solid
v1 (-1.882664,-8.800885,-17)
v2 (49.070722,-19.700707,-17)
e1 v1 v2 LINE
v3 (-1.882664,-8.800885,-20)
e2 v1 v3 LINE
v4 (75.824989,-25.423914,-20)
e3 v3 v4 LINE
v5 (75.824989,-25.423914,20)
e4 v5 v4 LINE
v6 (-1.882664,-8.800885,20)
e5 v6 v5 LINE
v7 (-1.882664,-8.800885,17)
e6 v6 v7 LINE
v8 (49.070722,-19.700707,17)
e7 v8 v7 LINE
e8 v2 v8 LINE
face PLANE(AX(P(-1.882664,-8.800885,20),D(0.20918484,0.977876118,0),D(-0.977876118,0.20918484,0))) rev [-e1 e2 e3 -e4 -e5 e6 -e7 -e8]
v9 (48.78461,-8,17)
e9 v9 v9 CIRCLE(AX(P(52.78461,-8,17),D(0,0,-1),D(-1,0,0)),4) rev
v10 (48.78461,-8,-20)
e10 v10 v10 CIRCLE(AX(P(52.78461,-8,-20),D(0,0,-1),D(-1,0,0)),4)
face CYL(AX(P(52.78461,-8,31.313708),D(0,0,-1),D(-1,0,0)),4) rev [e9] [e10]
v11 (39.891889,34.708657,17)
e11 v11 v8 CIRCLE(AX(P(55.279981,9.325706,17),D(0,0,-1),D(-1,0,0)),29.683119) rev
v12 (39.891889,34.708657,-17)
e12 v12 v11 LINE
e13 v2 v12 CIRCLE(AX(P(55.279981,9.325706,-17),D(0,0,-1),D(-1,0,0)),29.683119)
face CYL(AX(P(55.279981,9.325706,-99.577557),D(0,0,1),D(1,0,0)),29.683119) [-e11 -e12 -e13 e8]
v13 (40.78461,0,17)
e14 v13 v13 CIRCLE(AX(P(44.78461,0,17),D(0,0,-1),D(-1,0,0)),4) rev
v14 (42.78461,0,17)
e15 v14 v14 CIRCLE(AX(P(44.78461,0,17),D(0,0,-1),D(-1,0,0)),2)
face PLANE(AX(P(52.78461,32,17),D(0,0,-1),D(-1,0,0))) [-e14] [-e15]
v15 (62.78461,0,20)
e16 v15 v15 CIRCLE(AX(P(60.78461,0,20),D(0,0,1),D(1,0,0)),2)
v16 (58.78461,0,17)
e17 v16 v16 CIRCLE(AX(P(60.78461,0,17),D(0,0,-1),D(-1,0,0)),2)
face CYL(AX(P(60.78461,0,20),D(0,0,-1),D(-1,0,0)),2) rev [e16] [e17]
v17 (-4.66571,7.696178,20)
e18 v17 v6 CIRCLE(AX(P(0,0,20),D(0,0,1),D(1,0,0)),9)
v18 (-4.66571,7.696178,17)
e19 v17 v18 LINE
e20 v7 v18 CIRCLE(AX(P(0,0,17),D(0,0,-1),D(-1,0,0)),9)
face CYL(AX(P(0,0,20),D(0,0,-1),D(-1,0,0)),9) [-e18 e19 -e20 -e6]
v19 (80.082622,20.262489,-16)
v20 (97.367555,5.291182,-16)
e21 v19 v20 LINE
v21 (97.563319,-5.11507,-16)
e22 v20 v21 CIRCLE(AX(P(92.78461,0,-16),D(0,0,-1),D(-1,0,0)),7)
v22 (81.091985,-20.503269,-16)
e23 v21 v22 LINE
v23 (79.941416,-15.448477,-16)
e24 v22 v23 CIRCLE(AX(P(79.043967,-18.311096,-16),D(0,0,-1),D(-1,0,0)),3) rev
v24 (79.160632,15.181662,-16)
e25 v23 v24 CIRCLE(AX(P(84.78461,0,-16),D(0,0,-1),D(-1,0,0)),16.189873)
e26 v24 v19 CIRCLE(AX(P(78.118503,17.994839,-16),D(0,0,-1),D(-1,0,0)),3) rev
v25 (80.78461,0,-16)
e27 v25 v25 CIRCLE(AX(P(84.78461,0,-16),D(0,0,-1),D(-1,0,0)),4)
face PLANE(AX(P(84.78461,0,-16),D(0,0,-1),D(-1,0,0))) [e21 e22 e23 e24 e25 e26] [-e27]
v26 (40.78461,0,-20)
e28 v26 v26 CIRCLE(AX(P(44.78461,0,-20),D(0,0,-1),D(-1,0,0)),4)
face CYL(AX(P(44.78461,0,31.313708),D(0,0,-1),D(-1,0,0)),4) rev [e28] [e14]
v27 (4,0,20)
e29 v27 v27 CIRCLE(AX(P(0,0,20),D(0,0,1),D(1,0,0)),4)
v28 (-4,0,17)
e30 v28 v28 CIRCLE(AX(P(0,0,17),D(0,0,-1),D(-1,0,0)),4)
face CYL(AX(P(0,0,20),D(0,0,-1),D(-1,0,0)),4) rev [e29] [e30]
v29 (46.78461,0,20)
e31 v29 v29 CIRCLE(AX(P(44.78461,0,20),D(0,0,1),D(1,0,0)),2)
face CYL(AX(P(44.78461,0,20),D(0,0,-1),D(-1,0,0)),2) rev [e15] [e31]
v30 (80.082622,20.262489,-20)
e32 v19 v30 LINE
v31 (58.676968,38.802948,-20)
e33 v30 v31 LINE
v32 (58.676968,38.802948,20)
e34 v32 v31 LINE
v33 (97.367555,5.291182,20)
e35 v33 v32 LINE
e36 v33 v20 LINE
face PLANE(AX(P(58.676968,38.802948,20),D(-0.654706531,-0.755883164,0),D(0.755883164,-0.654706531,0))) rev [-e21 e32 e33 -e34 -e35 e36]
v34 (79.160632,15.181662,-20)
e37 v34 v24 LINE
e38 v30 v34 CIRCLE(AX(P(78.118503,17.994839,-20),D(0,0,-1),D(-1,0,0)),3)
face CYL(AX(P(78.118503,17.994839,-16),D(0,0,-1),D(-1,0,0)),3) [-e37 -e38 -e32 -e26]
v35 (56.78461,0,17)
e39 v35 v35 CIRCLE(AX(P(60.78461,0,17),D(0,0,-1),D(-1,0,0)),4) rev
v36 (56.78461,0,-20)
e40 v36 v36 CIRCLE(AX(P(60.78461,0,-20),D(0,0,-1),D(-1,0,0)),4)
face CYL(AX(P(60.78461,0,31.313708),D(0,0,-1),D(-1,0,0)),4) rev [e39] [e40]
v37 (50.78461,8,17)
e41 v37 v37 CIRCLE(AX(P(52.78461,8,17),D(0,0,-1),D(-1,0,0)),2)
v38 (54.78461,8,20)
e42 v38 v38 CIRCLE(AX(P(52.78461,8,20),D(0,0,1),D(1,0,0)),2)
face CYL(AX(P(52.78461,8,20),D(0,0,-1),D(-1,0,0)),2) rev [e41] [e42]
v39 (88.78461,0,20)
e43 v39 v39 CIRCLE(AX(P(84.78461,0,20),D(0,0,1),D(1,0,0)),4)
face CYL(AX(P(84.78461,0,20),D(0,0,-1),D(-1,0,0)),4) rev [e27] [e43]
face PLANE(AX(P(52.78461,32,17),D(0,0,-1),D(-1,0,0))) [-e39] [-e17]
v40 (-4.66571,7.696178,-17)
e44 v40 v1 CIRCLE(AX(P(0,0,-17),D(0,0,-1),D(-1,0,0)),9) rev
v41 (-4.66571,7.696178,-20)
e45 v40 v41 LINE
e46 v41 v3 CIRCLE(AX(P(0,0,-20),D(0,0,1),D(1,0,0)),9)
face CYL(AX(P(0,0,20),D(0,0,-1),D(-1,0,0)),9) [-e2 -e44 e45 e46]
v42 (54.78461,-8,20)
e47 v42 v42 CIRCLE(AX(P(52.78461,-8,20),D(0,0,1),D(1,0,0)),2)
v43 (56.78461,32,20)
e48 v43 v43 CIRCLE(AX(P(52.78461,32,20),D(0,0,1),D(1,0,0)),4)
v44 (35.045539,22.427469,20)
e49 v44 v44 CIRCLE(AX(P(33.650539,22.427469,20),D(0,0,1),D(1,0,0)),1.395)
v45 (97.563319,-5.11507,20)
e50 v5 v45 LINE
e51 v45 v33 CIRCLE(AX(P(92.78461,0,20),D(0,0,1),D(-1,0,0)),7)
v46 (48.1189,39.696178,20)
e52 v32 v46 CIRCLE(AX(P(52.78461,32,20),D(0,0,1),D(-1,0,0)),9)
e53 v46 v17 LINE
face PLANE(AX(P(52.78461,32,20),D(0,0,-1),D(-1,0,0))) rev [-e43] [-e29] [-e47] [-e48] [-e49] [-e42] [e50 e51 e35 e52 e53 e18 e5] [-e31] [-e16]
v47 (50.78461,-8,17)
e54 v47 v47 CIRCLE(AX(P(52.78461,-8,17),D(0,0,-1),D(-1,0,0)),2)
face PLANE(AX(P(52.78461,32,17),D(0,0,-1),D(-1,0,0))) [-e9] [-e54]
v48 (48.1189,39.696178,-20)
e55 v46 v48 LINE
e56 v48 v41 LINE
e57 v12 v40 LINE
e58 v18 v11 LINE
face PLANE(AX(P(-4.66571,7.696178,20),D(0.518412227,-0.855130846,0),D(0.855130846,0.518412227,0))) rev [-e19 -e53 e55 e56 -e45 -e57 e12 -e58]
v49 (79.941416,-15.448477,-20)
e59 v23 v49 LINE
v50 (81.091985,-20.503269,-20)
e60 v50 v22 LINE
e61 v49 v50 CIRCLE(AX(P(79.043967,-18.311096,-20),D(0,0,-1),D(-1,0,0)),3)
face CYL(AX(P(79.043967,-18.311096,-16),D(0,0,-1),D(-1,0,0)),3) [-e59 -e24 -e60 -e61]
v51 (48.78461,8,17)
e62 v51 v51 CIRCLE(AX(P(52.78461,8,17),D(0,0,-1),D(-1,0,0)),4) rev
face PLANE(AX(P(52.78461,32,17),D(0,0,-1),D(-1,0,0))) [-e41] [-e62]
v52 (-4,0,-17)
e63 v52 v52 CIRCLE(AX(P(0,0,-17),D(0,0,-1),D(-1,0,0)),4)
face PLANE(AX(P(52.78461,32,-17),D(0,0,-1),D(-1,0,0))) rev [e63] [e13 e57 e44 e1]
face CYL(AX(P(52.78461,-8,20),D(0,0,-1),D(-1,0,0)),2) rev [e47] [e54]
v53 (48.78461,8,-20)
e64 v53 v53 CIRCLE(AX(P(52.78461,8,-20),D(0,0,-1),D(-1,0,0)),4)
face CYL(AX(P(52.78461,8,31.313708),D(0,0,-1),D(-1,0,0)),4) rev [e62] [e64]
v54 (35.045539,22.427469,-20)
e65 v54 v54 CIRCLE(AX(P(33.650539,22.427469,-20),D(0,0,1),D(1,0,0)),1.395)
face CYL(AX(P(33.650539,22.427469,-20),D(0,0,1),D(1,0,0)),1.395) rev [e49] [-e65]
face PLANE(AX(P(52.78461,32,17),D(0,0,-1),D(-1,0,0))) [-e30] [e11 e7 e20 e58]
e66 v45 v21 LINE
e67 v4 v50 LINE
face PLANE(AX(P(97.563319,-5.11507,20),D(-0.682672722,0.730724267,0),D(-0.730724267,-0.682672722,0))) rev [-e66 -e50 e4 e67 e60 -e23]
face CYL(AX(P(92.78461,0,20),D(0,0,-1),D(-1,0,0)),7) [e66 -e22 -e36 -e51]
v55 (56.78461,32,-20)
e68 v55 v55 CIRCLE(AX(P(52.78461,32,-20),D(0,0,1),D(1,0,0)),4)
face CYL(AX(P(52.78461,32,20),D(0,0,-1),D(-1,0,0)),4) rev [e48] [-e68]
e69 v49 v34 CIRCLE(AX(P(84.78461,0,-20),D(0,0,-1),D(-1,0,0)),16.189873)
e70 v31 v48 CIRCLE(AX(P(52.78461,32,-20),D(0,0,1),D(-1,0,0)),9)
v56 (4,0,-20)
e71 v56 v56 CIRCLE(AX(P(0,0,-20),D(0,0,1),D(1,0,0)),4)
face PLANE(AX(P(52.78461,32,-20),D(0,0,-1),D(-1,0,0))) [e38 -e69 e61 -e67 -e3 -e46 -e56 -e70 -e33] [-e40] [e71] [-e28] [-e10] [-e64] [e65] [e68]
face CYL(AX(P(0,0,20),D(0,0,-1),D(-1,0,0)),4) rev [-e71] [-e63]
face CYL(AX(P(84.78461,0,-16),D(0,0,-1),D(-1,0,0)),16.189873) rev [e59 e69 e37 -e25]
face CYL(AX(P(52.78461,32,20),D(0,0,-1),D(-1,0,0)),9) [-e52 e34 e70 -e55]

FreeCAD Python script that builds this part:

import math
import FreeCAD as App
import Part
import Sketcher
from FreeCAD import Vector


def edges_at(feature, points):
    """Names of the edges that pass closest to the given points."""
    edges = feature.Shape.Edges
    near = lambda p: min(range(len(edges)), key=lambda i: edges[i].distToShape(Part.Vertex(*p))[0])
    return sorted({f"Edge{near(p) + 1}" for p in points})

doc = App.newDocument("Part")
body = doc.addObject("PartDesign::Body", "Body")

sketch1 = body.newObject("Sketcher::SketchObject", "Sketch")
sketch1.AttachmentSupport = (doc.getObject("XY_Plane"), [""])
sketch1.MapMode = "FlatFace"
sketch1.addGeometry(Part.LineSegment(Vector(48.1, 39.7, 0), Vector(-4.7, 7.7, 0)), False)
sketch1.addGeometry(Part.ArcOfCircle(Part.Circle(Vector(0, 0, 0), Vector(0, 0, 1), 9), math.radians(121), math.radians(258)), False)
sketch1.addGeometry(Part.LineSegment(Vector(-1.9, -8.8, 0), Vector(75.8, -25.4, 0)), False)
sketch1.addGeometry(Part.LineSegment(Vector(75.8, -25.4, 0), Vector(97.6, -5.1, 0)), False)
sketch1.addGeometry(Part.ArcOfCircle(Part.Circle(Vector(92.8, 0, 0), Vector(0, 0, 1), 7), math.radians(-47), math.radians(49)), False)
sketch1.addGeometry(Part.LineSegment(Vector(97.4, 5.3, 0), Vector(58.7, 38.8, 0)), False)
sketch1.addGeometry(Part.ArcOfCircle(Part.Circle(Vector(52.8, 32, 0), Vector(0, 0, 1), 9), math.radians(49), math.radians(121)), False)
sketch1.addGeometry(Part.Circle(Vector(84.8, 0, 0), Vector(0, 0, 1), 4), False)
sketch1.addGeometry(Part.Circle(Vector(52.8, -8, 0), Vector(0, 0, 1), 2), False)
sketch1.addGeometry(Part.Circle(Vector(60.8, 0, 0), Vector(0, 0, 1), 2), False)
sketch1.addGeometry(Part.Circle(Vector(44.8, 0, 0), Vector(0, 0, 1), 2), False)
sketch1.addGeometry(Part.Circle(Vector(52.8, 8, 0), Vector(0, 0, 1), 2), False)
sketch1.addGeometry(Part.Circle(Vector(0, 0, 0), Vector(0, 0, 1), 4), False)
sketch1.addGeometry(Part.Circle(Vector(52.8, 32, 0), Vector(0, 0, 1), 4), False)
sketch1.addConstraint(Sketcher.Constraint("Tangent", 0, 2, 1, 1))
sketch1.addConstraint(Sketcher.Constraint("Tangent", 1, 2, 2, 1))
sketch1.addConstraint(Sketcher.Constraint("Coincident", 2, 2, 3, 1))
sketch1.addConstraint(Sketcher.Constraint("Tangent", 3, 2, 4, 1))
sketch1.addConstraint(Sketcher.Constraint("Tangent", 4, 2, 5, 1))
sketch1.addConstraint(Sketcher.Constraint("Tangent", 5, 2, 6, 1))
sketch1.addConstraint(Sketcher.Constraint("Tangent", 6, 2, 0, 1))
sketch1.addConstraint(Sketcher.Constraint("Coincident", 1, 3, -1, 1))
sketch1.addConstraint(Sketcher.Constraint("Coincident", 12, 3, -1, 1))
sketch1.addConstraint(Sketcher.Constraint("Coincident", 13, 3, 6, 3))
sketch1.addConstraint(Sketcher.Constraint("Equal", 1, 6))
sketch1.addConstraint(Sketcher.Constraint("Equal", 8, 9))
sketch1.addConstraint(Sketcher.Constraint("Equal", 9, 10))
sketch1.addConstraint(Sketcher.Constraint("Equal", 10, 11))
sketch1.addConstraint(Sketcher.Constraint("Equal", 7, 12))
sketch1.addConstraint(Sketcher.Constraint("Equal", 12, 13))
sketch1.addConstraint(Sketcher.Constraint("Symmetric", 8, 3, 11, 3, -1))
sketch1.addConstraint(Sketcher.Constraint("PointOnObject", 4, 3, -1))
sketch1.addConstraint(Sketcher.Constraint("PointOnObject", 7, 3, -1))
sketch1.addConstraint(Sketcher.Constraint("PointOnObject", 9, 3, -1))
sketch1.addConstraint(Sketcher.Constraint("PointOnObject", 10, 3, -1))
sketch1.addConstraint(Sketcher.Constraint("Vertical", 6, 3, 8, 3))
sketch1.addConstraint(Sketcher.Constraint("Diameter", 7, 8.0))
sketch1.addConstraint(Sketcher.Constraint("Diameter", 8, 4.0))
sketch1.addConstraint(Sketcher.Constraint("Radius", 1, 9.0))
sketch1.addConstraint(Sketcher.Constraint("Radius", 4, 7.0))
sketch1.addConstraint(Sketcher.Constraint("DistanceY", -1, 1, 6, 3, 32.0))
sketch1.addConstraint(Sketcher.Constraint("DistanceY", 8, 3, -1, 1, 8.0))
sketch1.addConstraint(Sketcher.Constraint("DistanceX", 6, 3, 4, 3, 40.0))
sketch1.addConstraint(Sketcher.Constraint("DistanceX", 7, 3, 4, 3, 8.0))
sketch1.addConstraint(Sketcher.Constraint("DistanceX", 8, 3, 9, 3, 8.0))
sketch1.addConstraint(Sketcher.Constraint("DistanceX", 10, 3, 8, 3, 8.0))
sketch1.addConstraint(Sketcher.Constraint("DistanceX", -1, 1, 6, 2, 48.1189))
sketch1.addConstraint(Sketcher.Constraint("Distance", 3, 29.749019))
sketch1.addConstraint(Sketcher.Constraint("DistanceX", -1, 1, 2, 2, 75.824989))
pad1 = body.newObject("PartDesign::Pad", "Pad")
pad1.Profile = sketch1
pad1.Length = 40
pad1.Midplane = True

sketch2 = body.newObject("Sketcher::SketchObject", "Sketch001")
sketch2.AttachmentSupport = (doc.getObject("XY_Plane"), [""])
sketch2.MapMode = "FlatFace"
sketch2.addGeometry(Part.LineSegment(Vector(40, 35, 0), Vector(-5, 8, 0)), False)
sketch2.addGeometry(Part.ArcOfCircle(Part.Circle(Vector(0, 0, 0), Vector(0, 0, 1), 9), math.radians(121), math.radians(258)), False)
sketch2.addGeometry(Part.LineSegment(Vector(-2, -9, 0), Vector(49, -20, 0)), False)
sketch2.addGeometry(Part.ArcOfCircle(Part.Circle(Vector(55, 9, 0), Vector(0, 0, 1), 30), math.radians(121), math.radians(258)), False)
sketch2.addConstraint(Sketcher.Constraint("Tangent", 0, 2, 1, 1))
sketch2.addConstraint(Sketcher.Constraint("Tangent", 1, 2, 2, 1))
sketch2.addConstraint(Sketcher.Constraint("Tangent", 2, 2, 3, 2))
sketch2.addConstraint(Sketcher.Constraint("Tangent", 3, 1, 0, 1))
sketch2.addConstraint(Sketcher.Constraint("Coincident", 1, 3, -1, 1))
sketch2.addConstraint(Sketcher.Constraint("Radius", 1, 9.0))
sketch2.addConstraint(Sketcher.Constraint("Radius", 3, 29.683119))
sketch2.addConstraint(Sketcher.Constraint("DistanceX", 0, 2, 3, 1, 44.557599))
sketch2.addConstraint(Sketcher.Constraint("DistanceX", -1, 1, 3, 3, 55.279981))
pocket1 = body.newObject("PartDesign::Pocket", "Pocket")
pocket1.Profile = sketch2
pocket1.Type = "TwoLengths"
pocket1.Length = 17
pocket1.Length2 = 17
pocket1.Reversed = True

sketch3 = body.newObject("Sketcher::SketchObject", "Sketch002")
sketch3.AttachmentSupport = (doc.getObject("XY_Plane"), [""])
sketch3.MapMode = "FlatFace"
sketch3.AttachmentOffset = App.Placement(Vector(0, 0, -20), App.Rotation())
sketch3.addGeometry(Part.Circle(Vector(52.8, 8, 0), Vector(0, 0, 1), 4), False)
sketch3.addGeometry(Part.Circle(Vector(60.8, 0, 0), Vector(0, 0, 1), 4), False)
sketch3.addGeometry(Part.Circle(Vector(52.8, -8, 0), Vector(0, 0, 1), 4), False)
sketch3.addGeometry(Part.Circle(Vector(44.8, 0, 0), Vector(0, 0, 1), 4), False)
sketch3.addConstraint(Sketcher.Constraint("Equal", 0, 1))
sketch3.addConstraint(Sketcher.Constraint("Equal", 1, 2))
sketch3.addConstraint(Sketcher.Constraint("Equal", 2, 3))
sketch3.addConstraint(Sketcher.Constraint("Symmetric", 0, 3, 2, 3, -1))
sketch3.addConstraint(Sketcher.Constraint("PointOnObject", 1, 3, -1))
sketch3.addConstraint(Sketcher.Constraint("PointOnObject", 3, 3, -1))
sketch3.addConstraint(Sketcher.Constraint("Diameter", 0, 8.0))
sketch3.addConstraint(Sketcher.Constraint("DistanceY", -1, 1, 0, 3, 8.0))
sketch3.addConstraint(Sketcher.Constraint("DistanceX", 0, 3, 1, 3, 8.0))
sketch3.addConstraint(Sketcher.Constraint("DistanceX", 3, 3, 0, 3, 8.0))
sketch3.addConstraint(Sketcher.Constraint("DistanceX", -1, 1, 0, 3, 52.78461))
pocket2 = body.newObject("PartDesign::Pocket", "Pocket001")
pocket2.Profile = sketch3
pocket2.Length = 37
pocket2.Reversed = True

sketch4 = body.newObject("Sketcher::SketchObject", "Sketch003")
sketch4.AttachmentSupport = (doc.getObject("XY_Plane"), [""])
sketch4.MapMode = "FlatFace"
sketch4.AttachmentOffset = App.Placement(Vector(0, 0, 20), App.Rotation())
sketch4.addGeometry(Part.Circle(Vector(33.7, 22.4, 0), Vector(0, 0, 1), 1.4), False)
sketch4.addConstraint(Sketcher.Constraint("Diameter", 0, 2.79))
sketch4.addConstraint(Sketcher.Constraint("DistanceX", -1, 1, 0, 3, 33.650539))
sketch4.addConstraint(Sketcher.Constraint("DistanceY", -1, 1, 0, 3, 22.427469))
pocket3 = body.newObject("PartDesign::Pocket", "Pocket002")
pocket3.Profile = sketch4
pocket3.Type = "ThroughAll"

sketch5 = body.newObject("Sketcher::SketchObject", "Sketch004")
sketch5.AttachmentSupport = (doc.getObject("XY_Plane"), [""])
sketch5.MapMode = "FlatFace"
sketch5.AttachmentOffset = App.Placement(Vector(0, 0, -20), App.Rotation())
sketch5.addGeometry(Part.LineSegment(Vector(85, 16, 0), Vector(97, 5, 0)), False)
sketch5.addGeometry(Part.ArcOfCircle(Part.Circle(Vector(93, 0, 0), Vector(0, 0, 1), 7), math.radians(-47), math.radians(49)), False)
sketch5.addGeometry(Part.LineSegment(Vector(98, -5, 0), Vector(86, -16, 0)), False)
sketch5.addGeometry(Part.ArcOfCircle(Part.Circle(Vector(85, 0, 0), Vector(0, 0, 1), 16), math.radians(90), math.radians(273)), False)
sketch5.addConstraint(Sketcher.Constraint("Tangent", 0, 2, 1, 2))
sketch5.addConstraint(Sketcher.Constraint("Tangent", 1, 1, 2, 1))
sketch5.addConstraint(Sketcher.Constraint("Coincident", 2, 2, 3, 2))
sketch5.addConstraint(Sketcher.Constraint("Coincident", 3, 1, 0, 1))
sketch5.addConstraint(Sketcher.Constraint("PointOnObject", 1, 3, -1))
sketch5.addConstraint(Sketcher.Constraint("PointOnObject", 3, 3, -1))
sketch5.addConstraint(Sketcher.Constraint("Radius", 1, 7.0))
sketch5.addConstraint(Sketcher.Constraint("DistanceX", 3, 3, 1, 3, 8.0))
sketch5.addConstraint(Sketcher.Constraint("DistanceX", 3, 1, 1, 3, 8.0))
sketch5.addConstraint(Sketcher.Constraint("Radius", 3, 16.189873))
sketch5.addConstraint(Sketcher.Constraint("DistanceX", -1, 1, 1, 3, 92.78461))
sketch5.addConstraint(Sketcher.Constraint("DistanceX", -1, 1, 1, 1, 97.563319))
pocket4 = body.newObject("PartDesign::Pocket", "Pocket003")
pocket4.Profile = sketch5
pocket4.Length = 4
pocket4.Reversed = True
doc.recompute()

fillet = body.newObject("PartDesign::Fillet", "Fillet")
fillet.Base = (pocket4, edges_at(pocket4, [(84.785, 16.19, -18), (85.739, -16.162, -18)]))
fillet.Radius = 3

doc.recompute()
